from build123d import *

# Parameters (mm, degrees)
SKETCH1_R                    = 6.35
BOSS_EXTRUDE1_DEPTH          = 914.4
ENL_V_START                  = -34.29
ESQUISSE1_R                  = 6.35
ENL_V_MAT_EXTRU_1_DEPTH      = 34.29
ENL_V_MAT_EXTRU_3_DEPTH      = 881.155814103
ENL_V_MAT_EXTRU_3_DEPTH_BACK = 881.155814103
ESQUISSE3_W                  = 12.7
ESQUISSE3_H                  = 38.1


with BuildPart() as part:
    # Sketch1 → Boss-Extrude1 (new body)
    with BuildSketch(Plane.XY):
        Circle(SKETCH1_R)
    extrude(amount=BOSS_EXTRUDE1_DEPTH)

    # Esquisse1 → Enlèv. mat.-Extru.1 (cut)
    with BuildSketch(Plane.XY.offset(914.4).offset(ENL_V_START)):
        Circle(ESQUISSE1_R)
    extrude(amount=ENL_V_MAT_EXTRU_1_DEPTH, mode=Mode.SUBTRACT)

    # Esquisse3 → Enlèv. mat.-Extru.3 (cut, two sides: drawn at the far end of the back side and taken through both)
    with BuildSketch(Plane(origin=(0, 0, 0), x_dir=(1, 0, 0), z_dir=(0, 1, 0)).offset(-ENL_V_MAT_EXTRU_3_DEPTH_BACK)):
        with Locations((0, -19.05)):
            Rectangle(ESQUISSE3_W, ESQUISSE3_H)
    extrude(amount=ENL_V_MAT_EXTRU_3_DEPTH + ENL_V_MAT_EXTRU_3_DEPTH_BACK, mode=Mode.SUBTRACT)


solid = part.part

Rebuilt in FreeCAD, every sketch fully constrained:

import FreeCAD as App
import Part
import Sketcher
from FreeCAD import Vector
Q = App.Units.Quantity

doc = App.newDocument("Part")
body = doc.addObject("PartDesign::Body", "Body")

sketch1 = body.newObject("Sketcher::SketchObject", "Sketch")
sketch1.AttachmentSupport = (doc.getObject("XY_Plane"), [""])
sketch1.MapMode = "FlatFace"
sketch1.addGeometry(Part.Circle(Vector(0, 0, 0), Vector(0, 0, 1), 6), False)
sketch1.addConstraint(Sketcher.Constraint("Coincident", 0, 3, -1, 1))
sketch1.addConstraint(Sketcher.Constraint("Diameter", 0, Q("0.5 in")))
pad1 = body.newObject("PartDesign::Pad", "Pad")
pad1.Profile = sketch1
pad1.Length = Q("36 in")

sketch2 = body.newObject("Sketcher::SketchObject", "Sketch001")
sketch2.AttachmentSupport = (doc.getObject("XY_Plane"), [""])
sketch2.MapMode = "FlatFace"
sketch2.AttachmentOffset = App.Placement(Vector(0, 0, 34.65 * 25.4), App.Rotation())
sketch2.addGeometry(Part.Circle(Vector(0, 0, 0), Vector(0, 0, 1), 6), False)
sketch2.addConstraint(Sketcher.Constraint("Coincident", 0, 3, -1, 1))
sketch2.addConstraint(Sketcher.Constraint("Diameter", 0, Q("0.5 in")))
pocket1 = body.newObject("PartDesign::Pocket", "Pocket")
pocket1.Profile = sketch2
pocket1.Length = Q("1.35 in")
pocket1.Reversed = True

sketch3 = body.newObject("Sketcher::SketchObject", "Sketch002")
sketch3.AttachmentSupport = (doc.getObject("XZ_Plane"), [""])
sketch3.MapMode = "FlatFace"
sketch3.addGeometry(Part.LineSegment(Vector(-6, 0, 0), Vector(-6, 38, 0)), False)
sketch3.addGeometry(Part.LineSegment(Vector(-6, 38, 0), Vector(6, 38, 0)), False)
sketch3.addGeometry(Part.LineSegment(Vector(6, 38, 0), Vector(6, 0, 0)), False)
sketch3.addGeometry(Part.LineSegment(Vector(6, 0, 0), Vector(-6, 0, 0)), False)
sketch3.addConstraint(Sketcher.Constraint("Coincident", 0, 2, 1, 1))
sketch3.addConstraint(Sketcher.Constraint("Coincident", 1, 2, 2, 1))
sketch3.addConstraint(Sketcher.Constraint("Coincident", 2, 2, 3, 1))
sketch3.addConstraint(Sketcher.Constraint("Coincident", 3, 2, 0, 1))
sketch3.addConstraint(Sketcher.Constraint("Vertical", 0))
sketch3.addConstraint(Sketcher.Constraint("Horizontal", 1))
sketch3.addConstraint(Sketcher.Constraint("Vertical", 2))
sketch3.addConstraint(Sketcher.Constraint("Horizontal", 3))
sketch3.addConstraint(Sketcher.Constraint("Symmetric", 2, 2, 3, 2, -1, 1))
sketch3.addConstraint(Sketcher.Constraint("DistanceX", 1, 1, 1, 2, Q("0.5 in")))
sketch3.addConstraint(Sketcher.Constraint("DistanceY", 0, 1, 0, 2, Q("1.5 in")))
pocket2 = body.newObject("PartDesign::Pocket", "Pocket001")
pocket2.Profile = sketch3
pocket2.Type = "ThroughAll"
pocket2.Midplane = True

doc.recompute()
